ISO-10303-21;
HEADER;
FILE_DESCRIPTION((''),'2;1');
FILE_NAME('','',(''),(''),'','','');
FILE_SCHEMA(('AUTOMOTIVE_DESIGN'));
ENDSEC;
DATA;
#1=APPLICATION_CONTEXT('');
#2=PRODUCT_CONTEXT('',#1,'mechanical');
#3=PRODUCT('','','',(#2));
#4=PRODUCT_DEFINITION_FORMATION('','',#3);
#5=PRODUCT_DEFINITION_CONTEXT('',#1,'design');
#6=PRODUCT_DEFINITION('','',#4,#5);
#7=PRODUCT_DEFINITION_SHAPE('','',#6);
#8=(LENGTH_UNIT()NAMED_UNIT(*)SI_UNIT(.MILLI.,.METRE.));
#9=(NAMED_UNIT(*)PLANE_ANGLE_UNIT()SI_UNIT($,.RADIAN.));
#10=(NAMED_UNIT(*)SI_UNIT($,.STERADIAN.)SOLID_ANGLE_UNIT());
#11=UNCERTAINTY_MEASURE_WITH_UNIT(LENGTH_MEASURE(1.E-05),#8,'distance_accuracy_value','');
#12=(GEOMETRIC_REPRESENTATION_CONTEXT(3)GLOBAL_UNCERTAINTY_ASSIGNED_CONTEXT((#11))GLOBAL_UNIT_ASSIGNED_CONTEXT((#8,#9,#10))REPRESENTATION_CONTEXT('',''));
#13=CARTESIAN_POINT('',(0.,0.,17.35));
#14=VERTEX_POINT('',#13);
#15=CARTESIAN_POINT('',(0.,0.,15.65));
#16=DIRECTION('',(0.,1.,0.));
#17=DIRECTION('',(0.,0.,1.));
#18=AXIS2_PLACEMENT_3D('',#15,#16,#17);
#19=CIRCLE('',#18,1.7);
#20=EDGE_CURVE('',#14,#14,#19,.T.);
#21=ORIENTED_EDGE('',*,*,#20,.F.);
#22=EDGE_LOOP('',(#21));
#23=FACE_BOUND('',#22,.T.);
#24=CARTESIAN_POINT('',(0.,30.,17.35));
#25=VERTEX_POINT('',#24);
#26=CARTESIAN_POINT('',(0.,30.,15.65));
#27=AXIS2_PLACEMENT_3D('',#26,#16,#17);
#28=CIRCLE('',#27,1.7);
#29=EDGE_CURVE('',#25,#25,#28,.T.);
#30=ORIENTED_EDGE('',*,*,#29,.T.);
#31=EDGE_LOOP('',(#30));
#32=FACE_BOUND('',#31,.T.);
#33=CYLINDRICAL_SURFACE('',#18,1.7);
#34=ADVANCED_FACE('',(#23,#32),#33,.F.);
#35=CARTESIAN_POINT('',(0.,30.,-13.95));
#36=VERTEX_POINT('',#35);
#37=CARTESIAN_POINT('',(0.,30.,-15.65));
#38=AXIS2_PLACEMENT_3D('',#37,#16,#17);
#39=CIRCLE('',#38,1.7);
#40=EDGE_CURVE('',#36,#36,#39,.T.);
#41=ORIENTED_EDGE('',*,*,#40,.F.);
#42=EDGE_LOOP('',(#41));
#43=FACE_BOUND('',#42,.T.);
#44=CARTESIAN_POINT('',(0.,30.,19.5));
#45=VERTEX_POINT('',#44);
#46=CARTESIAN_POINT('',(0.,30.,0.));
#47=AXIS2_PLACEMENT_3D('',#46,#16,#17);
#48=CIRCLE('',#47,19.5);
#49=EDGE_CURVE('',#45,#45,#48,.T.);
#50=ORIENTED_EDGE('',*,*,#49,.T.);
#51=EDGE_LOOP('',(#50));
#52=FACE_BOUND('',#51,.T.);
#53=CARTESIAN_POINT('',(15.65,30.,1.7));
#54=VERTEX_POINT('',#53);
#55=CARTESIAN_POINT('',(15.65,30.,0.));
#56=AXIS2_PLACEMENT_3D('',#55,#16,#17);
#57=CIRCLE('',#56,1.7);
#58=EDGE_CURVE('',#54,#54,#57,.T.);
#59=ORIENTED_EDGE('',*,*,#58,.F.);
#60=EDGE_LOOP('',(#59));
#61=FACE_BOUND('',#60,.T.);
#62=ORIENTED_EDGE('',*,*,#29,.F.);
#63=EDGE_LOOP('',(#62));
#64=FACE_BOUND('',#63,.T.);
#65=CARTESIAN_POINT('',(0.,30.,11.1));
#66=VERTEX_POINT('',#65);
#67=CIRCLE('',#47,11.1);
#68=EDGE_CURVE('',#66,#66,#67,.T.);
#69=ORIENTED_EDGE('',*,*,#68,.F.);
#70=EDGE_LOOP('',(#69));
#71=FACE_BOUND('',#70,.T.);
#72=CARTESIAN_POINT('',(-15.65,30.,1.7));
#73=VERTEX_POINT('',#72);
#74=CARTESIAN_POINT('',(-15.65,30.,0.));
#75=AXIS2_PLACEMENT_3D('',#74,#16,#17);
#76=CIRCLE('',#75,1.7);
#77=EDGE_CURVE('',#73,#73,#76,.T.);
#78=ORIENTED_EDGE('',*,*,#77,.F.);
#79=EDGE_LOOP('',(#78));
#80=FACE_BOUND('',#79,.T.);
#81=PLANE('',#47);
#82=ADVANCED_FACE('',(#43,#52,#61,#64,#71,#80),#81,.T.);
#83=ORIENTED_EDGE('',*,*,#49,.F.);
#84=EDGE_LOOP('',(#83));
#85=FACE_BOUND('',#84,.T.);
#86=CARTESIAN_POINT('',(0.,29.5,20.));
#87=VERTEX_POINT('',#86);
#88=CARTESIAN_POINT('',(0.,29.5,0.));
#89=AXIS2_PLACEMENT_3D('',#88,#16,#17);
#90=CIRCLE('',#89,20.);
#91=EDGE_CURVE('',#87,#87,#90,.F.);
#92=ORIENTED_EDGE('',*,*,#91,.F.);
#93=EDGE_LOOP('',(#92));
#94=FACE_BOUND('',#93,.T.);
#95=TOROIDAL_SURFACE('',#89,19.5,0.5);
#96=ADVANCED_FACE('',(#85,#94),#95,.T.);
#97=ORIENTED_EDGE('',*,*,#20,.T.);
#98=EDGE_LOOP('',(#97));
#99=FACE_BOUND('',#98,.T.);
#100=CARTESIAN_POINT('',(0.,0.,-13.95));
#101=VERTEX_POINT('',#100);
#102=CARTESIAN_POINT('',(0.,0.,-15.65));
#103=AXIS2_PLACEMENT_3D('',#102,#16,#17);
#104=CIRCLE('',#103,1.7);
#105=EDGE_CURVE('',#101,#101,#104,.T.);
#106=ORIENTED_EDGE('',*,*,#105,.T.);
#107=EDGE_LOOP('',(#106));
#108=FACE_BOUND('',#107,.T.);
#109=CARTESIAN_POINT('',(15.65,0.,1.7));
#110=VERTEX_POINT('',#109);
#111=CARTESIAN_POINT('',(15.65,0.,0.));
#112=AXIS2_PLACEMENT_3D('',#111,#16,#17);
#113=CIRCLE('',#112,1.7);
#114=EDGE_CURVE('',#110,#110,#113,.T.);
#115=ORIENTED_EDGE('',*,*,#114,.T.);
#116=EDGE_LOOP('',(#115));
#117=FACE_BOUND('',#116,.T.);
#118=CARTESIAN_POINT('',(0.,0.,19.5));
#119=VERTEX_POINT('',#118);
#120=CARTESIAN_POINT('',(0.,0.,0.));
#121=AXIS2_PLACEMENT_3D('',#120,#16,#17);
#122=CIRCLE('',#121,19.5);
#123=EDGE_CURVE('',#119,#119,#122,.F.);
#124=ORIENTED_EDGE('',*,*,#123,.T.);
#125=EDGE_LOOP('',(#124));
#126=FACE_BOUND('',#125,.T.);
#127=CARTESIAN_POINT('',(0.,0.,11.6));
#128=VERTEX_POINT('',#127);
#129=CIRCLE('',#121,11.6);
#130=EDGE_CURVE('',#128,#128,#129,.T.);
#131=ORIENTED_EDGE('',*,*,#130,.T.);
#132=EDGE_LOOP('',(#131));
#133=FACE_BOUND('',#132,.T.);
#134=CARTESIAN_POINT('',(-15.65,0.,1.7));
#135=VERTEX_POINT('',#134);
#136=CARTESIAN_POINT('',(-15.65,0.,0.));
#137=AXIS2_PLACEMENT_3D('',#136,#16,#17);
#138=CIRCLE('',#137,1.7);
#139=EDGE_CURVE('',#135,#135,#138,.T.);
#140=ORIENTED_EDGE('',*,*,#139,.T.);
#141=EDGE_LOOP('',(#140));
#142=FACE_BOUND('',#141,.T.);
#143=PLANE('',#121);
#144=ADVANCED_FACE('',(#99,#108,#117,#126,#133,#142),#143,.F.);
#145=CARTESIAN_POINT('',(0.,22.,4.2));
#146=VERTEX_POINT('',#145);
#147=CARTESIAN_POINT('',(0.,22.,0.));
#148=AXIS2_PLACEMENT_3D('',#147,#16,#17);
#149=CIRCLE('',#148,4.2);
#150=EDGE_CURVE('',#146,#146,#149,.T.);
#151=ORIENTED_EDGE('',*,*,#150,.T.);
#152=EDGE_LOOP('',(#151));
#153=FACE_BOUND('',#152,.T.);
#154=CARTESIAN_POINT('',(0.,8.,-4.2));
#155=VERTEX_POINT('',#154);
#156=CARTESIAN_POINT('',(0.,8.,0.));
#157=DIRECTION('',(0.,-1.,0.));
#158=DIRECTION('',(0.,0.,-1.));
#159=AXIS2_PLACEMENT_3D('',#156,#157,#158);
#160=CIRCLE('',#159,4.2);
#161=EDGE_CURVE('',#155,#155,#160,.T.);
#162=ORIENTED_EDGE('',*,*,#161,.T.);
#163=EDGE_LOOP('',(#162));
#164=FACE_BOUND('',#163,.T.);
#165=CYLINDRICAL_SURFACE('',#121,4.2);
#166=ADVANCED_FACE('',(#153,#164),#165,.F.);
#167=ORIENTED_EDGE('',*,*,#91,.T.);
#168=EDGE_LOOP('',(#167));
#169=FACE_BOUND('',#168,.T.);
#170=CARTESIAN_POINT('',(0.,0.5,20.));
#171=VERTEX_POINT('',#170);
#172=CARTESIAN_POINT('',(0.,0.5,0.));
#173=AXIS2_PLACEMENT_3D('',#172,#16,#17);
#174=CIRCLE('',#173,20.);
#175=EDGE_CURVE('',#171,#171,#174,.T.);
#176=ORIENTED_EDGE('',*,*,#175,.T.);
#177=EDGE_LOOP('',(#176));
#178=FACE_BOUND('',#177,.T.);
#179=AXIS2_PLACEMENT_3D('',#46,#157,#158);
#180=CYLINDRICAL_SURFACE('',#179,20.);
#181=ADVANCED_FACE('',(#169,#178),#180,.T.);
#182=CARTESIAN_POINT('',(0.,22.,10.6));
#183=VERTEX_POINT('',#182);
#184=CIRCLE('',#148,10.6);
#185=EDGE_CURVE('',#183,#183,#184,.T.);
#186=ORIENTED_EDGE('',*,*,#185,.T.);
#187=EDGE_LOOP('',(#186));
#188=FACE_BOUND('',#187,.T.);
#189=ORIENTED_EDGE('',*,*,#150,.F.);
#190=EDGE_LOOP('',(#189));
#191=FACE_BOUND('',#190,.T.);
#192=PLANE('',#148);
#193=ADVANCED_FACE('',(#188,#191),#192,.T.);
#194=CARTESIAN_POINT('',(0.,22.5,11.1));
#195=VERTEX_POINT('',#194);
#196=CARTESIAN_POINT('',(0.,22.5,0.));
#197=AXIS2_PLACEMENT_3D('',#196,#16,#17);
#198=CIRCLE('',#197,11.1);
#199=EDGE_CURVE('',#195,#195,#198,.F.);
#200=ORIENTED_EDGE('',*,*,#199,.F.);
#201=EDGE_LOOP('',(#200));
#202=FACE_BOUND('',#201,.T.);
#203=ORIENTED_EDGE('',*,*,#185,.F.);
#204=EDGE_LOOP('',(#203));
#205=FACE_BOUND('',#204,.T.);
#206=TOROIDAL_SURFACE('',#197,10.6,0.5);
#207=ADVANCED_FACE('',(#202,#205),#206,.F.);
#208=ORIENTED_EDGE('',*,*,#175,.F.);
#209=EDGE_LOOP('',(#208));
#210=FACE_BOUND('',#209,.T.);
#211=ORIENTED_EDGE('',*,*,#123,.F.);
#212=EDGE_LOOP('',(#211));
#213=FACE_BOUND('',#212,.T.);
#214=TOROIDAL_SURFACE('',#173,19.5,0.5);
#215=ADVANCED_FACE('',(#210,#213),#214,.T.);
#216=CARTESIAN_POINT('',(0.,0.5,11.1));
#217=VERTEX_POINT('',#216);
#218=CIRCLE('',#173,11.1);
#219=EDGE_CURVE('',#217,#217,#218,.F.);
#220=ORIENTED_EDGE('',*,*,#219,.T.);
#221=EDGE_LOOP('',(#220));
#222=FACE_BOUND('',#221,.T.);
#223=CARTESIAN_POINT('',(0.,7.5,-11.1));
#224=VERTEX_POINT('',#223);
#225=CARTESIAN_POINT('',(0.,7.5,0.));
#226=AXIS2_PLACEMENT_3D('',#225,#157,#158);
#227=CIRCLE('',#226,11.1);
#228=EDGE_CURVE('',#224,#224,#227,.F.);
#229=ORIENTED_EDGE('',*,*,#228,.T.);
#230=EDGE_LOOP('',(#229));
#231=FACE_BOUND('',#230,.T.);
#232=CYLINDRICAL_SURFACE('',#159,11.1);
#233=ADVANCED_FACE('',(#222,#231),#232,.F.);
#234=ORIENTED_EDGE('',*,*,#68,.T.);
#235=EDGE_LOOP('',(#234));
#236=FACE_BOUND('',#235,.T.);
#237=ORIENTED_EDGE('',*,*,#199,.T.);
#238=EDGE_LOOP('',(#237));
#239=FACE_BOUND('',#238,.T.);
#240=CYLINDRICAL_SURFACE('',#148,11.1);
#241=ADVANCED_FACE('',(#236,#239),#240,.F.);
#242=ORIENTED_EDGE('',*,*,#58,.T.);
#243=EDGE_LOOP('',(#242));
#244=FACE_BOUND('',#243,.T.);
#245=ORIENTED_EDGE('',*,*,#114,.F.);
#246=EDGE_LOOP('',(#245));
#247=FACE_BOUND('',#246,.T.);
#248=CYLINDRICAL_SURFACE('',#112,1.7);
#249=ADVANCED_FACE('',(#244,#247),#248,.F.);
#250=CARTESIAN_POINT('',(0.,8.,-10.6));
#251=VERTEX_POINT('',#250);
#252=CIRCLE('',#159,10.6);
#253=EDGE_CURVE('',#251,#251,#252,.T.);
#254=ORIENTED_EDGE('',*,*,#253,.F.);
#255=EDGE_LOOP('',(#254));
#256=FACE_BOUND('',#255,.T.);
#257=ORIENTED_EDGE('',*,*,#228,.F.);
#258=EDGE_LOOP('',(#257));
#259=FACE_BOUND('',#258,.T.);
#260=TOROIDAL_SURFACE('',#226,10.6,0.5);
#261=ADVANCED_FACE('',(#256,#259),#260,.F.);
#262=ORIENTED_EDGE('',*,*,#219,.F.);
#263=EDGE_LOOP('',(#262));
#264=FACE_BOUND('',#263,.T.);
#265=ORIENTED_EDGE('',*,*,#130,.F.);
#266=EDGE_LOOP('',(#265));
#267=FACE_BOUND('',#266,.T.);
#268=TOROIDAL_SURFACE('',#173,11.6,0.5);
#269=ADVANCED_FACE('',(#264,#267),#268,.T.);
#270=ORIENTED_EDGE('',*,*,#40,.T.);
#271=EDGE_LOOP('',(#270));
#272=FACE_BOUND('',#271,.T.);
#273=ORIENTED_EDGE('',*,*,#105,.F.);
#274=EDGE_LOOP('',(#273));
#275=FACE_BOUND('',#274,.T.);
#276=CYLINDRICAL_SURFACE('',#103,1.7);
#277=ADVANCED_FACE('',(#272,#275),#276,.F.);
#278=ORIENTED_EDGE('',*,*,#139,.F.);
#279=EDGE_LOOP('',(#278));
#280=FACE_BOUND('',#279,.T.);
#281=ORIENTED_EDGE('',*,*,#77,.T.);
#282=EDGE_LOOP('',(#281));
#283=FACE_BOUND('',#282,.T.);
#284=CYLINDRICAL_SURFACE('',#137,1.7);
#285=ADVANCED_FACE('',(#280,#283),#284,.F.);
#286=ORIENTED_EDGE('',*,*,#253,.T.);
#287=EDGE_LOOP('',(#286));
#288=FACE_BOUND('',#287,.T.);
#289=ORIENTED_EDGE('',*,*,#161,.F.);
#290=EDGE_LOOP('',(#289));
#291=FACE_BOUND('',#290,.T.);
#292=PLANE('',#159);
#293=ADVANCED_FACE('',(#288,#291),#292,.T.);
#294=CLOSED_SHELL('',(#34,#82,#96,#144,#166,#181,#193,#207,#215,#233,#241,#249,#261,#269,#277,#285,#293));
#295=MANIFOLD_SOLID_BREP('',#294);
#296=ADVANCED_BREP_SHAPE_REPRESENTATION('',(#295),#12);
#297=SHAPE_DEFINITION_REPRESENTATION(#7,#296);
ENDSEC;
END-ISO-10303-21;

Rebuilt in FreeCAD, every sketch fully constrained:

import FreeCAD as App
import Part
import Sketcher

V = App.Vector
Q = App.Units.Quantity


def edges_at(feature, points):
    """Names of the edges that pass closest to the given points."""
    edges = feature.Shape.Edges
    near = lambda p: min(range(len(edges)), key=lambda i: edges[i].distToShape(Part.Vertex(*p))[0])
    return sorted({f"Edge{near(p) + 1}" for p in points})

doc = App.newDocument("Part")
body = doc.addObject("PartDesign::Body", "Body")

sketch1 = body.newObject("Sketcher::SketchObject", "Sketch")
sketch1.AttachmentSupport = (doc.getObject("XZ_Plane"), [""])
sketch1.MapMode = "FlatFace"
sketch1.addGeometry(Part.Circle(V(0, 0, 0), V(0, 0, 1), 20), False)
sketch1.addConstraint([
    Sketcher.Constraint("Coincident", 0, 3, -1, 1),
    Sketcher.Constraint("Diameter", 0, Q("40 mm")),
])
pad1 = body.newObject("PartDesign::Pad", "Pad")
pad1.Profile = sketch1
pad1.Length = 30
pad1.Reversed = True

sketch2 = body.newObject("Sketcher::SketchObject", "Sketch001")
sketch2.AttachmentSupport = (doc.getObject("XZ_Plane"), [""])
sketch2.MapMode = "FlatFace"
sketch2.AttachmentOffset = App.Placement(V(0, 0, -30), App.Rotation())
sketch2.addGeometry(Part.Circle(V(0, 0, 0), V(0, 0, 1), 11), False)
sketch2.addConstraint([
    Sketcher.Constraint("Coincident", 0, 3, -1, 1),
    Sketcher.Constraint("Diameter", 0, Q("22.2 mm")),
])
pocket1 = body.newObject("PartDesign::Pocket", "Pocket")
pocket1.Profile = sketch2
pocket1.Length = 8
pocket1.Reversed = True

sketch3 = body.newObject("Sketcher::SketchObject", "Sketch002")
sketch3.AttachmentSupport = (doc.getObject("XZ_Plane"), [""])
sketch3.MapMode = "FlatFace"
sketch3.AttachmentOffset = App.Placement(V(0, 0, -8), App.Rotation())
sketch3.addGeometry(Part.Circle(V(0, 0, 0), V(0, 0, 1), 11), False)
sketch3.addConstraint([
    Sketcher.Constraint("Coincident", 0, 3, -1, 1),
    Sketcher.Constraint("Diameter", 0, Q("22.2 mm")),
])
pocket2 = body.newObject("PartDesign::Pocket", "Pocket001")
pocket2.Profile = sketch3
pocket2.Length = 8
pocket2.Reversed = True

sketch4 = body.newObject("Sketcher::SketchObject", "Sketch003")
sketch4.AttachmentSupport = (doc.getObject("XZ_Plane"), [""])
sketch4.MapMode = "FlatFace"
sketch4.AttachmentOffset = App.Placement(V(0, 0, -30), App.Rotation())
sketch4.addGeometry([
    Part.Circle(V(0, -15.7, 0), V(0, 0, 1), 1.7),
    Part.Circle(V(-15.7, 0, 0), V(0, 0, 1), 1.7),
    Part.Circle(V(0, 15.7, 0), V(0, 0, 1), 1.7),
    Part.Circle(V(15.7, 0, 0), V(0, 0, 1), 1.7),
], False)
sketch4.addConstraint([
    Sketcher.Constraint("Equal", 0, 1),
    Sketcher.Constraint("Equal", 1, 2),
    Sketcher.Constraint("Equal", 2, 3),
    Sketcher.Constraint("Symmetric", 0, 3, 2, 3, -1, 1),
    Sketcher.Constraint("Symmetric", 1, 3, 3, 3, -1, 1),
    Sketcher.Constraint("PointOnObject", 0, 3, -2),
    Sketcher.Constraint("PointOnObject", 1, 3, -1),
    Sketcher.Constraint("Diameter", 0, Q("3.4 mm")),
    Sketcher.Constraint("DistanceY", 0, 3, 2, 3, Q("31.3 mm")),
    Sketcher.Constraint("DistanceX", 1, 3, 3, 3, Q("31.3 mm")),
])
pocket3 = body.newObject("PartDesign::Pocket", "Pocket002")
pocket3.Profile = sketch4
pocket3.Type = "ThroughAll"
pocket3.Reversed = True

sketch5 = body.newObject("Sketcher::SketchObject", "Sketch004")
sketch5.AttachmentSupport = (doc.getObject("XZ_Plane"), [""])
sketch5.MapMode = "FlatFace"
sketch5.AttachmentOffset = App.Placement(V(0, 0, -22), App.Rotation())
sketch5.addGeometry(Part.Circle(V(0, 0, 0), V(0, 0, 1), 4.2), False)
sketch5.addConstraint([
    Sketcher.Constraint("Coincident", 0, 3, -1, 1),
    Sketcher.Constraint("Diameter", 0, Q("8.4 mm")),
])
pocket4 = body.newObject("PartDesign::Pocket", "Pocket003")
pocket4.Profile = sketch5
pocket4.Type = "ThroughAll"
pocket4.Reversed = True
doc.recompute()

fillet = body.newObject("PartDesign::Fillet", "Fillet")
fillet.Base = (pocket4, edges_at(pocket4, [(0, 22, -11.1)]))
fillet.Radius = 0.5
doc.recompute()

fillet2 = body.newObject("PartDesign::Fillet", "Fillet001")
fillet2.Base = (fillet, edges_at(fillet, [
    (0, 8, -11.1),
    (0, 0, -11.1),
    (0, 0, -20),
    (0, 30, -20),
]))
fillet2.Radius = 0.5

doc.recompute()
